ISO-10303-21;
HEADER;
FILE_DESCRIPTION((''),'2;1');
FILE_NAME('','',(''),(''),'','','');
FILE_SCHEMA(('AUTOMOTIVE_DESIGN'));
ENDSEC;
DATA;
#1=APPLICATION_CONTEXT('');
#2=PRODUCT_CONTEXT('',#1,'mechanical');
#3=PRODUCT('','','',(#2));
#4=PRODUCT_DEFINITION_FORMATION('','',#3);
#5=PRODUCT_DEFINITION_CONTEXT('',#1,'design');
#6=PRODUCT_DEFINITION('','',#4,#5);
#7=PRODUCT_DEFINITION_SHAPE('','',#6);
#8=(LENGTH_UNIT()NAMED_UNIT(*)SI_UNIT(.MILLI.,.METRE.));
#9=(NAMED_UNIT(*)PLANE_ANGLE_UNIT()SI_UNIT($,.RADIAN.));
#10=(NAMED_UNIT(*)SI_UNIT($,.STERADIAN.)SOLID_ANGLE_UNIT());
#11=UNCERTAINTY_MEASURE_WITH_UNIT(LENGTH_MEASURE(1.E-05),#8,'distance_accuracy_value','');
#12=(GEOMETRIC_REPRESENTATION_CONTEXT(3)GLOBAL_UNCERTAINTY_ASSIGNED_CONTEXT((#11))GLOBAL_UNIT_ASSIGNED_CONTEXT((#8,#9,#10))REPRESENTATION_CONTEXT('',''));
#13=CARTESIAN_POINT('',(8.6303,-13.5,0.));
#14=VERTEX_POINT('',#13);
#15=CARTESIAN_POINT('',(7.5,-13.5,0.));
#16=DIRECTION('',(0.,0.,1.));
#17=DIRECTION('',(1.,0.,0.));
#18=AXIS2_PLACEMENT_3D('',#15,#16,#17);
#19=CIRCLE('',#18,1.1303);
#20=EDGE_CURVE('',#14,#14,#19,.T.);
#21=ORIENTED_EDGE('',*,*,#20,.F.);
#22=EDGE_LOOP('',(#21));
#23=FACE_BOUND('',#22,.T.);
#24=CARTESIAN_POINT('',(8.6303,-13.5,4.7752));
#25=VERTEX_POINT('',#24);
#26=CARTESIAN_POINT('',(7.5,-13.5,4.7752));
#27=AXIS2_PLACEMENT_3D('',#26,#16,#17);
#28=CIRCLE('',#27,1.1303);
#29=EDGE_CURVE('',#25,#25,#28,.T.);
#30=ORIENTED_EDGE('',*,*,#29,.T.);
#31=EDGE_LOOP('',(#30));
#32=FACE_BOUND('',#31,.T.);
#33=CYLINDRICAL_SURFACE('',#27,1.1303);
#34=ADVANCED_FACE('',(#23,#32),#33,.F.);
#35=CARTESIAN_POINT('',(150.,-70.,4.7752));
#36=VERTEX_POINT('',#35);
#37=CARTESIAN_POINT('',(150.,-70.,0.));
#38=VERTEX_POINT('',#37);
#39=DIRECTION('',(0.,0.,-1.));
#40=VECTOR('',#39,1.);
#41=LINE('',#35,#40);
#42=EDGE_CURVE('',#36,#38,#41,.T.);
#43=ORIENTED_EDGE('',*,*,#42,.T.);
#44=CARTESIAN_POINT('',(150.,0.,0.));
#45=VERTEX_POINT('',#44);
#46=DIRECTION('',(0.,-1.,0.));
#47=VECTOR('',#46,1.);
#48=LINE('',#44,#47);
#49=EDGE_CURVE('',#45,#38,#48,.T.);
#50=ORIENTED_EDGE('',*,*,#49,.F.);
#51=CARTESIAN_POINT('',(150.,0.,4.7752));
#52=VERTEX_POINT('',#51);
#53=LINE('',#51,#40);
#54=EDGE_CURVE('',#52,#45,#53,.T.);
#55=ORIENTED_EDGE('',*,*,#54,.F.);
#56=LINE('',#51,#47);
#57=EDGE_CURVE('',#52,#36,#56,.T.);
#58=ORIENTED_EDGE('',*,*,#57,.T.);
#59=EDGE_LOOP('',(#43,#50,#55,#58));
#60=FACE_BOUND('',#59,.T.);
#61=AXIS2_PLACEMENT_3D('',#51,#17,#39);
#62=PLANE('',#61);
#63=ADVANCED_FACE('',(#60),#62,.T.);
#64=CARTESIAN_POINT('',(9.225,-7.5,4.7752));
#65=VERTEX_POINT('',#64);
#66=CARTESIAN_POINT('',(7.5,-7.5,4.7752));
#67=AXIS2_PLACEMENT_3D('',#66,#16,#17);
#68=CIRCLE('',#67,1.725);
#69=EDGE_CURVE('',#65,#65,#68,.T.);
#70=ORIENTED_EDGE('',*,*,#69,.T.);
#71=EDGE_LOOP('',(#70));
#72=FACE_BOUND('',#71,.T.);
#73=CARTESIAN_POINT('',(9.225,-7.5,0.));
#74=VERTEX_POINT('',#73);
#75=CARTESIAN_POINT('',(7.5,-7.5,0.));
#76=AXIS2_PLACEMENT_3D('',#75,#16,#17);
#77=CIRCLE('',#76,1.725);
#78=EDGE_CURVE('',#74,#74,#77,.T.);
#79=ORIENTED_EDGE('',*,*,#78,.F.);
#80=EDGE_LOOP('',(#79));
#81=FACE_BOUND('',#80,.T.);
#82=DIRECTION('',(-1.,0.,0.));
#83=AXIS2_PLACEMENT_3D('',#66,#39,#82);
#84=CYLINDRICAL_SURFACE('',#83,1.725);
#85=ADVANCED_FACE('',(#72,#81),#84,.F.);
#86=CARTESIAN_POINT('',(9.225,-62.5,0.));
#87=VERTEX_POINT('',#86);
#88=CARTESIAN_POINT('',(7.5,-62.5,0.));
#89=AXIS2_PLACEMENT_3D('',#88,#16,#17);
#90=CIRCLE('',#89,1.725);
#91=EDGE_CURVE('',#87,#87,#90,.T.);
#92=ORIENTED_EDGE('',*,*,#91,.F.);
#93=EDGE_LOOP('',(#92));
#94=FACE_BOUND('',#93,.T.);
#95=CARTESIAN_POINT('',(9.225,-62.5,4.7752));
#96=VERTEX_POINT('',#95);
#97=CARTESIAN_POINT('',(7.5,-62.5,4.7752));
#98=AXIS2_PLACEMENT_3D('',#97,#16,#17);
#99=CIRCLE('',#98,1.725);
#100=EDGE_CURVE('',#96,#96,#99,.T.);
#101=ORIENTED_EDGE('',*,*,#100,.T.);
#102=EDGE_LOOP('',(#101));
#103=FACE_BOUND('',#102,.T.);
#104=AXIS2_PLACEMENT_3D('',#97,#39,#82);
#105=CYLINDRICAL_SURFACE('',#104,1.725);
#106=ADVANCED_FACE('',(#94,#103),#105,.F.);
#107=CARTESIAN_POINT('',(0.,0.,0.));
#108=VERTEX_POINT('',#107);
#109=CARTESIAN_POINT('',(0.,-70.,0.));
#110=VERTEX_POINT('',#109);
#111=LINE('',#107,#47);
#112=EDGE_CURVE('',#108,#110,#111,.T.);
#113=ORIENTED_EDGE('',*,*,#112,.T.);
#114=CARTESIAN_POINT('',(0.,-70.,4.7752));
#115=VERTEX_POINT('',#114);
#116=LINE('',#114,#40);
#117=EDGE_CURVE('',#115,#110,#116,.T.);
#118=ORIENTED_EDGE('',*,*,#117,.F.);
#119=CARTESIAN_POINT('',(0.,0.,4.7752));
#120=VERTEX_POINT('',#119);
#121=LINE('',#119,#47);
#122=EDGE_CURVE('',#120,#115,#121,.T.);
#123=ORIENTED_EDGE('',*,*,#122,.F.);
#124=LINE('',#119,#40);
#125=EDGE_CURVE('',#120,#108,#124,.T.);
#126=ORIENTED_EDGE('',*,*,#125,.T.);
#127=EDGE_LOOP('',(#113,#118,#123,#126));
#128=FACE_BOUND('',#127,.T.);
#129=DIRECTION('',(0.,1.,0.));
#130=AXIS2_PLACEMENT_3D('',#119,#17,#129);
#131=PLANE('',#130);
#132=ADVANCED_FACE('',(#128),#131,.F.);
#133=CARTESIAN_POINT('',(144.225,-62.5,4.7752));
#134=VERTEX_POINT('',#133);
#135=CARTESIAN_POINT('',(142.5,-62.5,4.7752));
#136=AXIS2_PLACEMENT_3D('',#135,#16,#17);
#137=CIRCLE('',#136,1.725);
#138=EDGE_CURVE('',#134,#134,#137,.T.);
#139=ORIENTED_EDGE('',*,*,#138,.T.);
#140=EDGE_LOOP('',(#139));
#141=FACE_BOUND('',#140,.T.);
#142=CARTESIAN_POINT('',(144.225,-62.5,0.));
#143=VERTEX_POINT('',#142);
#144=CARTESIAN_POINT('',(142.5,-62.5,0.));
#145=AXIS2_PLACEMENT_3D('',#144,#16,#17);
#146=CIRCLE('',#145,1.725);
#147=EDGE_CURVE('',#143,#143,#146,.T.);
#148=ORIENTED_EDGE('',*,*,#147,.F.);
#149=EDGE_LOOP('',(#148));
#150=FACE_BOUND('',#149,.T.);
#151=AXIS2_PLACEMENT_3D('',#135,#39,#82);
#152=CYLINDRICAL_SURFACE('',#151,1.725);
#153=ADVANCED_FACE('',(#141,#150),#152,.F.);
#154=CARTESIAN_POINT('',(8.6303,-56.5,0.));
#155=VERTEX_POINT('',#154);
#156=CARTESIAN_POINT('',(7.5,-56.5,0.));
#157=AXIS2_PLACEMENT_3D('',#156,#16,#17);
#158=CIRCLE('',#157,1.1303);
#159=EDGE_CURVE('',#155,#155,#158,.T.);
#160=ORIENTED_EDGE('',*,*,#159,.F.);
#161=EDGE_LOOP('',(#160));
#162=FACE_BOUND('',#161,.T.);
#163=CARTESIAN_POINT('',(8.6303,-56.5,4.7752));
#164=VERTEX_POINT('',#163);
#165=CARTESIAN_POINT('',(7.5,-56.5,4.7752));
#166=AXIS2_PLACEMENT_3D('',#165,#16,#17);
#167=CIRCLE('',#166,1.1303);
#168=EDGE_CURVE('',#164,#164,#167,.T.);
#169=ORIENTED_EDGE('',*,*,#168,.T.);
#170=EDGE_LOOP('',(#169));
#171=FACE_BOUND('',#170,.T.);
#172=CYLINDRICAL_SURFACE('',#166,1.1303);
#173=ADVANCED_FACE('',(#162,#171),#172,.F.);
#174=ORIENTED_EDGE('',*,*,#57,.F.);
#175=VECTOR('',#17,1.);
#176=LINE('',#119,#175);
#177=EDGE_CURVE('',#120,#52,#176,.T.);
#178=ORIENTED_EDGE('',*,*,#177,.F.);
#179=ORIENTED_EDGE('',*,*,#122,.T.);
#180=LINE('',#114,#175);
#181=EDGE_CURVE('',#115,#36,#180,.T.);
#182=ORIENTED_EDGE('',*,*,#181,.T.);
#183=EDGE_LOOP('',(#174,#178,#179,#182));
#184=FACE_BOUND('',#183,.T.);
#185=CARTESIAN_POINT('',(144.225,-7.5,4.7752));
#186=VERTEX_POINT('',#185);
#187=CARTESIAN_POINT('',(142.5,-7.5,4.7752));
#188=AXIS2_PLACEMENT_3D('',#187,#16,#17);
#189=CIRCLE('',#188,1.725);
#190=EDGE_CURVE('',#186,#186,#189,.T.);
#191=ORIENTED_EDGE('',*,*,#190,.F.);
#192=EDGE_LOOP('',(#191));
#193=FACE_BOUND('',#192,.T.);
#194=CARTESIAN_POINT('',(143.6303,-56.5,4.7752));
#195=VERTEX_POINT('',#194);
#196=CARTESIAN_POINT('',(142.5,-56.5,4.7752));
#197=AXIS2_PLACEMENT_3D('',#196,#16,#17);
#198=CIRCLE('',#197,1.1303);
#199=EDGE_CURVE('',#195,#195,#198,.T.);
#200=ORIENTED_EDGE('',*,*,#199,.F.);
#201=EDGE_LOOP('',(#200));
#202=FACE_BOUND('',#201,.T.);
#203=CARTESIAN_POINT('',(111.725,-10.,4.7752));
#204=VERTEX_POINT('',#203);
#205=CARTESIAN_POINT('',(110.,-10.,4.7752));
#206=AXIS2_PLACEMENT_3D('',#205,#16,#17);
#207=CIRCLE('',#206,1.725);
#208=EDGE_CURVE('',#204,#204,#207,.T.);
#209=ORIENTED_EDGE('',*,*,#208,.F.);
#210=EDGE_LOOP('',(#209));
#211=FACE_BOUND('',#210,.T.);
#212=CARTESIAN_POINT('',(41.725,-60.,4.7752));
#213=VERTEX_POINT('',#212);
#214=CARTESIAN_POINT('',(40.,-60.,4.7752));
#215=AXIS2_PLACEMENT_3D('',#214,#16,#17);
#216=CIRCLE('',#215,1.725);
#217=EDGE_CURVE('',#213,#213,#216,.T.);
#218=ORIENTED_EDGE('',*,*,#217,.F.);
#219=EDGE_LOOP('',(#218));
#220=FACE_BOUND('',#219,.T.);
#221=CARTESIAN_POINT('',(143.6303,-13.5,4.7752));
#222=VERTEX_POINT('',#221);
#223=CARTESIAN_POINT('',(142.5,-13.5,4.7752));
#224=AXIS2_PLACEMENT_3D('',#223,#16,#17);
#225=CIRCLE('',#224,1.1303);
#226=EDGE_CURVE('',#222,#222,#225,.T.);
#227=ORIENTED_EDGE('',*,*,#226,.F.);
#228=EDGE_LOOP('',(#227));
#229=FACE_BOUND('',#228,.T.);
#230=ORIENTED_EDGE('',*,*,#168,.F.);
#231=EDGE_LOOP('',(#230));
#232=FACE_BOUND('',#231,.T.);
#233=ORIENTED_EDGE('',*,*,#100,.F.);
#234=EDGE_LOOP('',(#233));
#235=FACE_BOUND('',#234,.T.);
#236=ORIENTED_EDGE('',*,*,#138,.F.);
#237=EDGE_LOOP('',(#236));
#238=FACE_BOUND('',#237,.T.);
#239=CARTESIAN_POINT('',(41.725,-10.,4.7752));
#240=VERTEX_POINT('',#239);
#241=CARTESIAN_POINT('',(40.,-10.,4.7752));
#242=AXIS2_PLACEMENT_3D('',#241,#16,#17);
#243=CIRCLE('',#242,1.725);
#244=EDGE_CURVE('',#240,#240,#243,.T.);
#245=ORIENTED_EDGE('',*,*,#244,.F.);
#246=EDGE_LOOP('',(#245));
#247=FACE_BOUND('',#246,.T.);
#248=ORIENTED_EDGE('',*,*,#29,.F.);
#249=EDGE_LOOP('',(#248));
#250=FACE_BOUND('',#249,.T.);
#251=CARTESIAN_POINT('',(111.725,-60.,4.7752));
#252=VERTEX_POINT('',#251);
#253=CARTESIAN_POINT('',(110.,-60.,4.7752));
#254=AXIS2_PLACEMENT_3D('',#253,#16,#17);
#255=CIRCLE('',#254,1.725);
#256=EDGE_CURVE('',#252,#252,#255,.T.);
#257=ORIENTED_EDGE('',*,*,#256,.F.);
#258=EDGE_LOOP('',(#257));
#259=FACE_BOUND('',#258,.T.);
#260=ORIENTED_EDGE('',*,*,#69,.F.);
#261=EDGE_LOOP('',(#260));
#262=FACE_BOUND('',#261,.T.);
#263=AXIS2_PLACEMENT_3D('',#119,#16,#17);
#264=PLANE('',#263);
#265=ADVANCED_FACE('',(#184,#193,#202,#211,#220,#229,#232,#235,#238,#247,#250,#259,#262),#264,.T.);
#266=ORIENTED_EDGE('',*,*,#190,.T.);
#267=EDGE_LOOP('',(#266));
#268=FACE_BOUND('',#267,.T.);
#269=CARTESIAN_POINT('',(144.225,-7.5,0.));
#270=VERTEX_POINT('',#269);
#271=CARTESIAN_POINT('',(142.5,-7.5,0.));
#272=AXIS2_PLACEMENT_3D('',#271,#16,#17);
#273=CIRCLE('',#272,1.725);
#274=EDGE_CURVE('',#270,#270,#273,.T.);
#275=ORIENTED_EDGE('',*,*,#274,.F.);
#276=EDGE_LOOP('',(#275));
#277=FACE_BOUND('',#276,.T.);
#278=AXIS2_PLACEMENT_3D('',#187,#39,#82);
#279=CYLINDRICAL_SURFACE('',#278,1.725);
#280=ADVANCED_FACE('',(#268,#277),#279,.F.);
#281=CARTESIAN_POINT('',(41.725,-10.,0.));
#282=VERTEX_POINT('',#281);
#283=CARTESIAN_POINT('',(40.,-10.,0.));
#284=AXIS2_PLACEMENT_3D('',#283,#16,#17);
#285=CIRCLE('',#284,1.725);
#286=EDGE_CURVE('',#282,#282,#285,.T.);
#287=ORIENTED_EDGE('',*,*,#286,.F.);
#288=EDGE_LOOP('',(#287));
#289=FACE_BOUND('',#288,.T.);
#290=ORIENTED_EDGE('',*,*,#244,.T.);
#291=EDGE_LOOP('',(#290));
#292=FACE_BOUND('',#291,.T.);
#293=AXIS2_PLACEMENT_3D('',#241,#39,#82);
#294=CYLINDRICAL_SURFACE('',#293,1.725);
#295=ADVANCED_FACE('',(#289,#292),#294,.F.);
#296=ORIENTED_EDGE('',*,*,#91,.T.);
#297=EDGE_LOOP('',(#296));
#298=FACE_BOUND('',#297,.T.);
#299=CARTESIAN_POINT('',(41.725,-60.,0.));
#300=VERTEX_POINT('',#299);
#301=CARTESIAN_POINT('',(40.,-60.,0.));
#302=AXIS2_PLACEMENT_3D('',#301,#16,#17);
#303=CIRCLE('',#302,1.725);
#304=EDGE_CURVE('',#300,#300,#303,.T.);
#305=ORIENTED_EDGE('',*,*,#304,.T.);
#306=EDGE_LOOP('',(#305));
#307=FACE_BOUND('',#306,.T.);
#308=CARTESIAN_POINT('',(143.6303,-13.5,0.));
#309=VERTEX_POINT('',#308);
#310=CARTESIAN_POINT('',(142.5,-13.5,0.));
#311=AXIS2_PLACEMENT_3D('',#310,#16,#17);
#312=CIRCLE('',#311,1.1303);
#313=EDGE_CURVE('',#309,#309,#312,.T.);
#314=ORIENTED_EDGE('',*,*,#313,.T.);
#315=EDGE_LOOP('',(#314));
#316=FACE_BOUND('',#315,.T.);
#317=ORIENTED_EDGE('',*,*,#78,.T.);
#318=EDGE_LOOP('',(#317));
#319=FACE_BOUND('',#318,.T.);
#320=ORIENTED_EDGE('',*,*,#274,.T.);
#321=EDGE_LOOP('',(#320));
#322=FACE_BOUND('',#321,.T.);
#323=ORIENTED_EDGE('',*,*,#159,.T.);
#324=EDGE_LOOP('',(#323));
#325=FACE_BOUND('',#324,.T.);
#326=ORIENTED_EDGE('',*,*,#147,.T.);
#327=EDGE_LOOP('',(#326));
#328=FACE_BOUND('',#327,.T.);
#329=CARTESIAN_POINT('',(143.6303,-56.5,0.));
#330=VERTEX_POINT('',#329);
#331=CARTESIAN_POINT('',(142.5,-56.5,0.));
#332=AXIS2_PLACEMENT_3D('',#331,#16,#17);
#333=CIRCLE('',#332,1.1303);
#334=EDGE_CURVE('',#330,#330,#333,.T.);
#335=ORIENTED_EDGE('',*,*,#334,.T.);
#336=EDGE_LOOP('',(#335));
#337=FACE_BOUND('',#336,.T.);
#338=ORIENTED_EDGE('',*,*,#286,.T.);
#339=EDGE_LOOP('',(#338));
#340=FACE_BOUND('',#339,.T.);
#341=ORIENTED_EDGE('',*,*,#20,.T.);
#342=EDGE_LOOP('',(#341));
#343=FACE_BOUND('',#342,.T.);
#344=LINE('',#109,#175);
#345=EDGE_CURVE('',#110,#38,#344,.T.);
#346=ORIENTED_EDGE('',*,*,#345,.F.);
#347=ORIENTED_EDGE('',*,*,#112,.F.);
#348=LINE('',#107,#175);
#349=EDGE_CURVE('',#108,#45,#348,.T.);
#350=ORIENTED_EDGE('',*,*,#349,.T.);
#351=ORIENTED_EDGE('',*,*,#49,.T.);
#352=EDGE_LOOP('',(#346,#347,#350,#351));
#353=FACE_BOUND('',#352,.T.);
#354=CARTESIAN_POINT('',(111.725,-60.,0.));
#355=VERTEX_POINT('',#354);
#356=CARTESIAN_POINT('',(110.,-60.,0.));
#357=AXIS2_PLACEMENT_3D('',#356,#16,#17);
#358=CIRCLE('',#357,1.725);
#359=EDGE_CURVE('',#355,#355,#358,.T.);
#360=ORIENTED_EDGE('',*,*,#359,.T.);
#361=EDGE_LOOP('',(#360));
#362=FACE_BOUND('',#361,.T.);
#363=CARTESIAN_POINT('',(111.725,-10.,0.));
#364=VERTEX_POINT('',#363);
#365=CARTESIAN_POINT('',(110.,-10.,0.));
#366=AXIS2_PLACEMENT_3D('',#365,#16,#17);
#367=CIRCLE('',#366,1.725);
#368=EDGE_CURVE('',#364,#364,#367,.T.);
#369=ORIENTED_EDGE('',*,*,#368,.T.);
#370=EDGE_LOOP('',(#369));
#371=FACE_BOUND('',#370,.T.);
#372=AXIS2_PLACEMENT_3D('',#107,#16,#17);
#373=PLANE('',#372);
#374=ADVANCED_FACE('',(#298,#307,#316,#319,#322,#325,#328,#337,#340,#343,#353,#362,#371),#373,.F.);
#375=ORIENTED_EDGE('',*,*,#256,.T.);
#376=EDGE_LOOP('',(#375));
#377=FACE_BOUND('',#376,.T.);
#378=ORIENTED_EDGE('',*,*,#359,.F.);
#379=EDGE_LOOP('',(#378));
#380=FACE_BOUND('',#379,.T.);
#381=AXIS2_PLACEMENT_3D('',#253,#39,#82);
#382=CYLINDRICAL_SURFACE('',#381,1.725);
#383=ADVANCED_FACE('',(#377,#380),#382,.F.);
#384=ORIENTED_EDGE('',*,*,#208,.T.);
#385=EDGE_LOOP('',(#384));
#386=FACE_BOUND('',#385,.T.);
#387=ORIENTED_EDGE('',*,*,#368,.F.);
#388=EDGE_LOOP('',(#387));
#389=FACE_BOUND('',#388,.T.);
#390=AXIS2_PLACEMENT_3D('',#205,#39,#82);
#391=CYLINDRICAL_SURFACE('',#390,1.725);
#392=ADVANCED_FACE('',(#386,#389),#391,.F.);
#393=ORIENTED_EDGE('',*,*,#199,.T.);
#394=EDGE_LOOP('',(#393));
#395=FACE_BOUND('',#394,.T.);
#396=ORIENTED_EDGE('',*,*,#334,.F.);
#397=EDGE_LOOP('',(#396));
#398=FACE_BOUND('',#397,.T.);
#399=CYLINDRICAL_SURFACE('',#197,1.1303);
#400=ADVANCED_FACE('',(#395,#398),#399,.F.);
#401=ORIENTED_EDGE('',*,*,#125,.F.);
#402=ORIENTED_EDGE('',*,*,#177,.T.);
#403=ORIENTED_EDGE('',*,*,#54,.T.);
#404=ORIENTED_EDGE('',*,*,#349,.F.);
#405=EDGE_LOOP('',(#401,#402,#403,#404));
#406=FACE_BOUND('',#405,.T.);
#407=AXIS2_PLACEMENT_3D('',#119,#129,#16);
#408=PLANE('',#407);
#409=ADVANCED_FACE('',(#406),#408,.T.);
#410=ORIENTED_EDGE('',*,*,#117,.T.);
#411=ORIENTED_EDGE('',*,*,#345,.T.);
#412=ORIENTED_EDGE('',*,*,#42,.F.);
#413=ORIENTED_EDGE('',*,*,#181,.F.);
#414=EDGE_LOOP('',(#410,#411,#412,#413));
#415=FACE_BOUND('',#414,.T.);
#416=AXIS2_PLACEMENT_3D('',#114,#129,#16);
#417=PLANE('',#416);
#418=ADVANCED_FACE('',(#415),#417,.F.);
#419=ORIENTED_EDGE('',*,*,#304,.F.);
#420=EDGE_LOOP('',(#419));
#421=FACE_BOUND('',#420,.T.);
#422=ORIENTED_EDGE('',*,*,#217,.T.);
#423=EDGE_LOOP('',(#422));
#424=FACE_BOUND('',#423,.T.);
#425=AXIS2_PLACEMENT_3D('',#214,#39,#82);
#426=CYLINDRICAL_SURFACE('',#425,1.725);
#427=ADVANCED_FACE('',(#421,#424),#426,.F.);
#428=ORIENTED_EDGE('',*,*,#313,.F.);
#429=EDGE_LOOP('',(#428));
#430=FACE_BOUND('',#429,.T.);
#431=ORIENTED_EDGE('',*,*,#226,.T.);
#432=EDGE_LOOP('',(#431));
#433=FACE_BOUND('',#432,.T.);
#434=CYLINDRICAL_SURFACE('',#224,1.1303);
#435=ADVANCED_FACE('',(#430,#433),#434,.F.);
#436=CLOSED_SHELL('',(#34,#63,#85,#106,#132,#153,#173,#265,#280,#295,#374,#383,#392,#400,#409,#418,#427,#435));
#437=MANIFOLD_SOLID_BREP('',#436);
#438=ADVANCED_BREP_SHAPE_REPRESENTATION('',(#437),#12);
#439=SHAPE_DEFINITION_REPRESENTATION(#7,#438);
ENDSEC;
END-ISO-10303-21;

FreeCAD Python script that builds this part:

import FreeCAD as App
import Part
import Sketcher

V = App.Vector

doc = App.newDocument("Part")
params = doc.addObject("Spreadsheet::Sheet", "Params")
for row, (alias, value) in enumerate([
    ("sketch1_diameter", "3.45 mm"),
    ("sketch1_diameter2", "2.26 mm"),
    ("sketch1_width", "150 mm"),
    ("sketch1_height", "70 mm"),
    ("pad1_length", "4.7752 mm"),
    ("hole_diameter", "2.2606 mm"),
], start=1):
    params.set(f"A{row}", alias)
    params.set(f"B{row}", "=" + value)
    params.setAlias(f"B{row}", alias)

body = doc.addObject("PartDesign::Body", "Body")

sketch1 = body.newObject("Sketcher::SketchObject", "Sketch")
sketch1.AttachmentSupport = (doc.getObject("XY_Plane"), [""])
sketch1.MapMode = "FlatFace"
sketch1.addGeometry([
    Part.LineSegment(V(0, 0, 0), V(0, -70, 0)),
    Part.LineSegment(V(0, -70, 0), V(150, -70, 0)),
    Part.LineSegment(V(150, -70, 0), V(150, 0, 0)),
    Part.LineSegment(V(150, 0, 0), V(0, 0, 0)),
    Part.Circle(V(7.5, -62.5, 0), V(0, 0, 1), 1.7),
    Part.Circle(V(40, -60, 0), V(0, 0, 1), 1.7),
    Part.Circle(V(7.5, -56.5, 0), V(0, 0, 1), 1.1),
    Part.Circle(V(110, -60, 0), V(0, 0, 1), 1.7),
    Part.Circle(V(142.5, -62.5, 0), V(0, 0, 1), 1.7),
    Part.Circle(V(142.5, -56.5, 0), V(0, 0, 1), 1.1),
    Part.Circle(V(7.5, -13.5, 0), V(0, 0, 1), 1.1),
    Part.Circle(V(7.5, -7.5, 0), V(0, 0, 1), 1.7),
    Part.Circle(V(40, -10, 0), V(0, 0, 1), 1.7),
    Part.Circle(V(142.5, -13.5, 0), V(0, 0, 1), 1.1),
    Part.Circle(V(110, -10, 0), V(0, 0, 1), 1.7),
    Part.Circle(V(142.5, -7.5, 0), V(0, 0, 1), 1.7),
], False)
sketch1.addConstraint([
    Sketcher.Constraint("Coincident", 0, 2, 1, 1),
    Sketcher.Constraint("Coincident", 1, 2, 2, 1),
    Sketcher.Constraint("Coincident", 2, 2, 3, 1),
    Sketcher.Constraint("Coincident", 3, 2, 0, 1),
    Sketcher.Constraint("Vertical", 0),
    Sketcher.Constraint("Horizontal", 1),
    Sketcher.Constraint("Vertical", 2),
    Sketcher.Constraint("Horizontal", 3),
    Sketcher.Constraint("Coincident", 3, 2, -1, 1),
    Sketcher.Constraint("Equal", 4, 5),
    Sketcher.Constraint("Equal", 5, 7),
    Sketcher.Constraint("Equal", 7, 8),
    Sketcher.Constraint("Equal", 6, 9),
    Sketcher.Constraint("Equal", 9, 10),
    Sketcher.Constraint("Equal", 8, 11),
    Sketcher.Constraint("Equal", 11, 12),
    Sketcher.Constraint("Equal", 10, 13),
    Sketcher.Constraint("Equal", 12, 14),
    Sketcher.Constraint("Equal", 14, 15),
    Sketcher.Constraint("Horizontal", 5, 3, 7, 3),
    Sketcher.Constraint("Horizontal", 4, 3, 8, 3),
    Sketcher.Constraint("Horizontal", 6, 3, 9, 3),
    Sketcher.Constraint("Horizontal", 10, 3, 13, 3),
    Sketcher.Constraint("Horizontal", 12, 3, 14, 3),
    Sketcher.Constraint("Horizontal", 11, 3, 15, 3),
    Sketcher.Constraint("Vertical", 4, 3, 6, 3),
    Sketcher.Constraint("Vertical", 8, 3, 9, 3),
    Sketcher.Constraint("Vertical", 6, 3, 10, 3),
    Sketcher.Constraint("Vertical", 10, 3, 11, 3),
    Sketcher.Constraint("Vertical", 5, 3, 12, 3),
    Sketcher.Constraint("Vertical", 9, 3, 13, 3),
    Sketcher.Constraint("Vertical", 7, 3, 14, 3),
    Sketcher.Constraint("Vertical", 13, 3, 15, 3),
    Sketcher.Constraint("Diameter", 4, 3.45),
    Sketcher.Constraint("Diameter", 6, 2.26),
    Sketcher.Constraint("DistanceX", 1, 1, 1, 2, 150.0),
    Sketcher.Constraint("DistanceY", 0, 2, 0, 1, 70.0),
    Sketcher.Constraint("DistanceX", -1, 1, 5, 3, 40.0),
    Sketcher.Constraint("DistanceY", 5, 3, -1, 1, 60.0),
    Sketcher.Constraint("DistanceX", -1, 1, 7, 3, 110.0),
    Sketcher.Constraint("DistanceY", 12, 3, -1, 1, 10.0),
    Sketcher.Constraint("DistanceY", 4, 3, 6, 3, 6.0),
    Sketcher.Constraint("DistanceX", 4, 3, 8, 3, 135.0),
    Sketcher.Constraint("DistanceY", 6, 3, 10, 3, 43.0),
    Sketcher.Constraint("DistanceY", 10, 3, 11, 3, 6.0),
    Sketcher.Constraint("DistanceX", -1, 1, 4, 3, 7.5),
    Sketcher.Constraint("DistanceY", 4, 3, -1, 1, 62.5),
])
sketch1.setExpression("Constraints[33]", "Params.sketch1_diameter")
sketch1.setExpression("Constraints[34]", "Params.sketch1_diameter2")
sketch1.setExpression("Constraints[35]", "Params.sketch1_width")
sketch1.setExpression("Constraints[36]", "Params.sketch1_height")
pad1 = body.newObject("PartDesign::Pad", "Pad")
pad1.Profile = sketch1
pad1.setExpression("Length", "Params.pad1_length")

sketch2 = body.newObject("Sketcher::SketchObject", "Sketch001")
sketch2.AttachmentSupport = (doc.getObject("XY_Plane"), [""])
sketch2.MapMode = "FlatFace"
sketch2.AttachmentOffset = App.Placement(V(0, 0, 4.7752), App.Rotation())
sketch2.addGeometry([
    Part.Circle(V(7.5, -13.5, 0), V(0, 0, 1), 1.1),
    Part.Circle(V(7.5, -56.5, 0), V(0, 0, 1), 1.1),
    Part.Circle(V(142.5, -56.5, 0), V(0, 0, 1), 1.1),
    Part.Circle(V(142.5, -13.5, 0), V(0, 0, 1), 1.1),
], False)
sketch2.addConstraint([
    Sketcher.Constraint("Equal", 0, 1),
    Sketcher.Constraint("Equal", 1, 2),
    Sketcher.Constraint("Equal", 2, 3),
    Sketcher.Constraint("Horizontal", 1, 3, 2, 3),
    Sketcher.Constraint("Horizontal", 0, 3, 3, 3),
    Sketcher.Constraint("Vertical", 0, 3, 1, 3),
    Sketcher.Constraint("Vertical", 2, 3, 3, 3),
    Sketcher.Constraint("DistanceY", 1, 3, 0, 3, 43.0),
    Sketcher.Constraint("DistanceX", 1, 3, 2, 3, 135.0),
    Sketcher.Constraint("Diameter", 0, 2.2606),
    Sketcher.Constraint("DistanceX", -1, 1, 0, 3, 7.5),
    Sketcher.Constraint("DistanceY", 0, 3, -1, 1, 13.5),
])
doc.recompute()
hole = body.newObject("PartDesign::Hole", "Hole")
hole.Profile = sketch2
hole.ThreadType = "None"
hole.setExpression("Diameter", "Params.hole_diameter")
hole.DepthType = "ThroughAll"

doc.recompute()
